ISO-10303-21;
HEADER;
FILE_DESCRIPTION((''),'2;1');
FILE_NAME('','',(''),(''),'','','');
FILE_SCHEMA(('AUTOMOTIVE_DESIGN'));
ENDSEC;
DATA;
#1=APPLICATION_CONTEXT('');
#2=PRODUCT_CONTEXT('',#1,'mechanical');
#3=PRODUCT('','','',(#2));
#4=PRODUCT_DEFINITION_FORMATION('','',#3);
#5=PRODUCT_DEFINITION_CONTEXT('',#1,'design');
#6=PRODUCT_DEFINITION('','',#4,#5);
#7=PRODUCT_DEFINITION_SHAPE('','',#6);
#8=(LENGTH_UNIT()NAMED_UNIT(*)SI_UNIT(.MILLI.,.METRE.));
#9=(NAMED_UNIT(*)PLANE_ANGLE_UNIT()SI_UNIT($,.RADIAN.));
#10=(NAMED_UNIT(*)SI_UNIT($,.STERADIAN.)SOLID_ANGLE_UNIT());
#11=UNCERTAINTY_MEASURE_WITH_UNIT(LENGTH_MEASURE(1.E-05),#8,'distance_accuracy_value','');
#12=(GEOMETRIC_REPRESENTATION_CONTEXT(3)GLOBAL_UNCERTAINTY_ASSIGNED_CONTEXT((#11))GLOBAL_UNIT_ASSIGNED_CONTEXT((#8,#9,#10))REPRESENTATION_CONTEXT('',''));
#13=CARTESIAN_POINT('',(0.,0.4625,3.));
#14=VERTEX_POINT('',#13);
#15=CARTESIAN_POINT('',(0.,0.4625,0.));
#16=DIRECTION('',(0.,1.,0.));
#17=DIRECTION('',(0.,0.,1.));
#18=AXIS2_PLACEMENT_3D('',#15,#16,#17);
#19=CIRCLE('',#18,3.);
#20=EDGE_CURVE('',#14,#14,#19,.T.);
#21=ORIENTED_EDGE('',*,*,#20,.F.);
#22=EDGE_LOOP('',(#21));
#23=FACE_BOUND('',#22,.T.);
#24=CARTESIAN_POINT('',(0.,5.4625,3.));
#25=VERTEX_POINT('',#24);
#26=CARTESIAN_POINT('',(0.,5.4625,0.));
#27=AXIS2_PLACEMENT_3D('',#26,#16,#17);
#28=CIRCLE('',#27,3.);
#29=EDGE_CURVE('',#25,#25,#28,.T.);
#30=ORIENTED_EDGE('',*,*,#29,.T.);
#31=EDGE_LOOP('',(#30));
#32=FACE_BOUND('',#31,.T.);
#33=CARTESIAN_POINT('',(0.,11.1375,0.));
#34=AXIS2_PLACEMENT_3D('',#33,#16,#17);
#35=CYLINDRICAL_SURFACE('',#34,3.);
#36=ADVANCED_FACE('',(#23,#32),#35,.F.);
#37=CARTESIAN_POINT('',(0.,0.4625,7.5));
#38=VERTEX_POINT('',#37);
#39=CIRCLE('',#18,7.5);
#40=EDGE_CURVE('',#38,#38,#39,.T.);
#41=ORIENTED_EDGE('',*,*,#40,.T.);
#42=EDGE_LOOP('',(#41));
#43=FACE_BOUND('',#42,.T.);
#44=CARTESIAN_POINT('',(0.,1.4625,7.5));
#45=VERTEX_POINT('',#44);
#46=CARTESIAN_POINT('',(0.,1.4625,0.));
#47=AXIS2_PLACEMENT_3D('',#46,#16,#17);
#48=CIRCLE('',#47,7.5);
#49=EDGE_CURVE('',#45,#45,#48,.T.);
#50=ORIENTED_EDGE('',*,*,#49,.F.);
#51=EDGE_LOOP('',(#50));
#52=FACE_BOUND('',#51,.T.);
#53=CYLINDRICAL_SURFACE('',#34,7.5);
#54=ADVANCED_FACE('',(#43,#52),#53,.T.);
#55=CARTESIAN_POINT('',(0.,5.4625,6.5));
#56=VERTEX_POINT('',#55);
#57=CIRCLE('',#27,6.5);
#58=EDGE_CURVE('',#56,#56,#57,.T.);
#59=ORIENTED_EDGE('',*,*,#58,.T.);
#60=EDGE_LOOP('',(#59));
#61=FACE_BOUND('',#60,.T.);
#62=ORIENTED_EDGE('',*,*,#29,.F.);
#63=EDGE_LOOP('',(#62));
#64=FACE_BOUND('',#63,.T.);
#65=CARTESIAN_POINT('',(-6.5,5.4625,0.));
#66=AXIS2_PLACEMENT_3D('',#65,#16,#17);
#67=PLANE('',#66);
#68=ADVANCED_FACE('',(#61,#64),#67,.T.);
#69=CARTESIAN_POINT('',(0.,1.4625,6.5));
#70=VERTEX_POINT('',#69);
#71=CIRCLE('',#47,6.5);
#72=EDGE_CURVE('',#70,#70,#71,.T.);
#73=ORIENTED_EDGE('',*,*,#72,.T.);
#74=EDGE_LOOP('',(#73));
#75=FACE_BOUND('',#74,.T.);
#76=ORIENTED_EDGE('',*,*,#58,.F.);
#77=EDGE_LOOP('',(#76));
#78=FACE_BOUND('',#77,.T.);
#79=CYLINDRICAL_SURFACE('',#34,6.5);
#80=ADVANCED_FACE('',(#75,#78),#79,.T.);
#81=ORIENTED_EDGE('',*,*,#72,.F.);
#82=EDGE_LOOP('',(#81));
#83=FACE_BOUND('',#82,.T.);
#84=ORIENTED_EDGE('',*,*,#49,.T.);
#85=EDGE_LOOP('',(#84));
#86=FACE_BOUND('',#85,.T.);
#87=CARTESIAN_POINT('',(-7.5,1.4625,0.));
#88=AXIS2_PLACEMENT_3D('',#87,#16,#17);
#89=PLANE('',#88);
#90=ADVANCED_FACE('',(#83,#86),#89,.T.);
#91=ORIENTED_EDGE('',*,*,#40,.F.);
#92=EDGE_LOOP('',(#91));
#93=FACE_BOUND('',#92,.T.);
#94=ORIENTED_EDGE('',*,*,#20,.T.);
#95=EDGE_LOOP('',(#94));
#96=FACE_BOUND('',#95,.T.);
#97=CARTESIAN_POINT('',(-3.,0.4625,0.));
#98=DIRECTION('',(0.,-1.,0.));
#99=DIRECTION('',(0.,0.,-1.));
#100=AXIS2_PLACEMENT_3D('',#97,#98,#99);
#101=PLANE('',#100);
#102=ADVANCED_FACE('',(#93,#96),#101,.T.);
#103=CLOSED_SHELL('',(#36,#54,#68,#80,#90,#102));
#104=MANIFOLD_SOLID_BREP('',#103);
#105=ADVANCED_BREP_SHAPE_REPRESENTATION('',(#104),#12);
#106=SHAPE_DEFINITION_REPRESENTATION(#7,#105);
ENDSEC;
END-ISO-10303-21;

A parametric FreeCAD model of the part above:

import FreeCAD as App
import Part
import Sketcher
from FreeCAD import Vector

doc = App.newDocument("Part")
body = doc.addObject("PartDesign::Body", "Body")

# Sketch on XY plane
sketch1 = body.newObject("Sketcher::SketchObject", "Sketch")
sketch1.AttachmentSupport = (doc.getObject("XY_Plane"), [""])
sketch1.MapMode = "FlatFace"
sketch1.addGeometry(Part.LineSegment(Vector(-7.5, 0.5, 0), Vector(-3, 0.5, 0)), False)
sketch1.addGeometry(Part.LineSegment(Vector(-3, 0.5, 0), Vector(-3, 5.5, 0)), False)
sketch1.addGeometry(Part.LineSegment(Vector(-3, 5.5, 0), Vector(-6.5, 5.5, 0)), False)
sketch1.addGeometry(Part.LineSegment(Vector(-6.5, 5.5, 0), Vector(-6.5, 1.5, 0)), False)
sketch1.addGeometry(Part.LineSegment(Vector(-6.5, 1.5, 0), Vector(-7.5, 1.5, 0)), False)
sketch1.addGeometry(Part.LineSegment(Vector(-7.5, 1.5, 0), Vector(-7.5, 0.5, 0)), False)
sketch1.addConstraint(Sketcher.Constraint("Coincident", 0, 2, 1, 1))
sketch1.addConstraint(Sketcher.Constraint("Coincident", 1, 2, 2, 1))
sketch1.addConstraint(Sketcher.Constraint("Coincident", 2, 2, 3, 1))
sketch1.addConstraint(Sketcher.Constraint("Coincident", 3, 2, 4, 1))
sketch1.addConstraint(Sketcher.Constraint("Coincident", 4, 2, 5, 1))
sketch1.addConstraint(Sketcher.Constraint("Coincident", 5, 2, 0, 1))
sketch1.addConstraint(Sketcher.Constraint("Horizontal", 0))
sketch1.addConstraint(Sketcher.Constraint("Vertical", 1))
sketch1.addConstraint(Sketcher.Constraint("Horizontal", 2))
sketch1.addConstraint(Sketcher.Constraint("Vertical", 3))
sketch1.addConstraint(Sketcher.Constraint("Horizontal", 4))
sketch1.addConstraint(Sketcher.Constraint("Vertical", 5))
sketch1.addConstraint(Sketcher.Constraint("Equal", 4, 5))
sketch1.addConstraint(Sketcher.Constraint("DistanceX", 4, 2, 4, 1, 1.0))
sketch1.addConstraint(Sketcher.Constraint("DistanceY", 1, 1, 1, 2, 5.0))
sketch1.addConstraint(Sketcher.Constraint("DistanceX", 0, 1, 0, 2, 4.5))
sketch1.addConstraint(Sketcher.Constraint("DistanceX", 0, 2, -1, 1, 3.0))
sketch1.addConstraint(Sketcher.Constraint("DistanceY", -1, 1, 0, 2, 0.4625))
revolution = body.newObject("PartDesign::Revolution", "Revolution")
revolution.Profile = sketch1
revolution.ReferenceAxis = (sketch1, ["V_Axis"])
revolution.Angle = 360

doc.recompute()
